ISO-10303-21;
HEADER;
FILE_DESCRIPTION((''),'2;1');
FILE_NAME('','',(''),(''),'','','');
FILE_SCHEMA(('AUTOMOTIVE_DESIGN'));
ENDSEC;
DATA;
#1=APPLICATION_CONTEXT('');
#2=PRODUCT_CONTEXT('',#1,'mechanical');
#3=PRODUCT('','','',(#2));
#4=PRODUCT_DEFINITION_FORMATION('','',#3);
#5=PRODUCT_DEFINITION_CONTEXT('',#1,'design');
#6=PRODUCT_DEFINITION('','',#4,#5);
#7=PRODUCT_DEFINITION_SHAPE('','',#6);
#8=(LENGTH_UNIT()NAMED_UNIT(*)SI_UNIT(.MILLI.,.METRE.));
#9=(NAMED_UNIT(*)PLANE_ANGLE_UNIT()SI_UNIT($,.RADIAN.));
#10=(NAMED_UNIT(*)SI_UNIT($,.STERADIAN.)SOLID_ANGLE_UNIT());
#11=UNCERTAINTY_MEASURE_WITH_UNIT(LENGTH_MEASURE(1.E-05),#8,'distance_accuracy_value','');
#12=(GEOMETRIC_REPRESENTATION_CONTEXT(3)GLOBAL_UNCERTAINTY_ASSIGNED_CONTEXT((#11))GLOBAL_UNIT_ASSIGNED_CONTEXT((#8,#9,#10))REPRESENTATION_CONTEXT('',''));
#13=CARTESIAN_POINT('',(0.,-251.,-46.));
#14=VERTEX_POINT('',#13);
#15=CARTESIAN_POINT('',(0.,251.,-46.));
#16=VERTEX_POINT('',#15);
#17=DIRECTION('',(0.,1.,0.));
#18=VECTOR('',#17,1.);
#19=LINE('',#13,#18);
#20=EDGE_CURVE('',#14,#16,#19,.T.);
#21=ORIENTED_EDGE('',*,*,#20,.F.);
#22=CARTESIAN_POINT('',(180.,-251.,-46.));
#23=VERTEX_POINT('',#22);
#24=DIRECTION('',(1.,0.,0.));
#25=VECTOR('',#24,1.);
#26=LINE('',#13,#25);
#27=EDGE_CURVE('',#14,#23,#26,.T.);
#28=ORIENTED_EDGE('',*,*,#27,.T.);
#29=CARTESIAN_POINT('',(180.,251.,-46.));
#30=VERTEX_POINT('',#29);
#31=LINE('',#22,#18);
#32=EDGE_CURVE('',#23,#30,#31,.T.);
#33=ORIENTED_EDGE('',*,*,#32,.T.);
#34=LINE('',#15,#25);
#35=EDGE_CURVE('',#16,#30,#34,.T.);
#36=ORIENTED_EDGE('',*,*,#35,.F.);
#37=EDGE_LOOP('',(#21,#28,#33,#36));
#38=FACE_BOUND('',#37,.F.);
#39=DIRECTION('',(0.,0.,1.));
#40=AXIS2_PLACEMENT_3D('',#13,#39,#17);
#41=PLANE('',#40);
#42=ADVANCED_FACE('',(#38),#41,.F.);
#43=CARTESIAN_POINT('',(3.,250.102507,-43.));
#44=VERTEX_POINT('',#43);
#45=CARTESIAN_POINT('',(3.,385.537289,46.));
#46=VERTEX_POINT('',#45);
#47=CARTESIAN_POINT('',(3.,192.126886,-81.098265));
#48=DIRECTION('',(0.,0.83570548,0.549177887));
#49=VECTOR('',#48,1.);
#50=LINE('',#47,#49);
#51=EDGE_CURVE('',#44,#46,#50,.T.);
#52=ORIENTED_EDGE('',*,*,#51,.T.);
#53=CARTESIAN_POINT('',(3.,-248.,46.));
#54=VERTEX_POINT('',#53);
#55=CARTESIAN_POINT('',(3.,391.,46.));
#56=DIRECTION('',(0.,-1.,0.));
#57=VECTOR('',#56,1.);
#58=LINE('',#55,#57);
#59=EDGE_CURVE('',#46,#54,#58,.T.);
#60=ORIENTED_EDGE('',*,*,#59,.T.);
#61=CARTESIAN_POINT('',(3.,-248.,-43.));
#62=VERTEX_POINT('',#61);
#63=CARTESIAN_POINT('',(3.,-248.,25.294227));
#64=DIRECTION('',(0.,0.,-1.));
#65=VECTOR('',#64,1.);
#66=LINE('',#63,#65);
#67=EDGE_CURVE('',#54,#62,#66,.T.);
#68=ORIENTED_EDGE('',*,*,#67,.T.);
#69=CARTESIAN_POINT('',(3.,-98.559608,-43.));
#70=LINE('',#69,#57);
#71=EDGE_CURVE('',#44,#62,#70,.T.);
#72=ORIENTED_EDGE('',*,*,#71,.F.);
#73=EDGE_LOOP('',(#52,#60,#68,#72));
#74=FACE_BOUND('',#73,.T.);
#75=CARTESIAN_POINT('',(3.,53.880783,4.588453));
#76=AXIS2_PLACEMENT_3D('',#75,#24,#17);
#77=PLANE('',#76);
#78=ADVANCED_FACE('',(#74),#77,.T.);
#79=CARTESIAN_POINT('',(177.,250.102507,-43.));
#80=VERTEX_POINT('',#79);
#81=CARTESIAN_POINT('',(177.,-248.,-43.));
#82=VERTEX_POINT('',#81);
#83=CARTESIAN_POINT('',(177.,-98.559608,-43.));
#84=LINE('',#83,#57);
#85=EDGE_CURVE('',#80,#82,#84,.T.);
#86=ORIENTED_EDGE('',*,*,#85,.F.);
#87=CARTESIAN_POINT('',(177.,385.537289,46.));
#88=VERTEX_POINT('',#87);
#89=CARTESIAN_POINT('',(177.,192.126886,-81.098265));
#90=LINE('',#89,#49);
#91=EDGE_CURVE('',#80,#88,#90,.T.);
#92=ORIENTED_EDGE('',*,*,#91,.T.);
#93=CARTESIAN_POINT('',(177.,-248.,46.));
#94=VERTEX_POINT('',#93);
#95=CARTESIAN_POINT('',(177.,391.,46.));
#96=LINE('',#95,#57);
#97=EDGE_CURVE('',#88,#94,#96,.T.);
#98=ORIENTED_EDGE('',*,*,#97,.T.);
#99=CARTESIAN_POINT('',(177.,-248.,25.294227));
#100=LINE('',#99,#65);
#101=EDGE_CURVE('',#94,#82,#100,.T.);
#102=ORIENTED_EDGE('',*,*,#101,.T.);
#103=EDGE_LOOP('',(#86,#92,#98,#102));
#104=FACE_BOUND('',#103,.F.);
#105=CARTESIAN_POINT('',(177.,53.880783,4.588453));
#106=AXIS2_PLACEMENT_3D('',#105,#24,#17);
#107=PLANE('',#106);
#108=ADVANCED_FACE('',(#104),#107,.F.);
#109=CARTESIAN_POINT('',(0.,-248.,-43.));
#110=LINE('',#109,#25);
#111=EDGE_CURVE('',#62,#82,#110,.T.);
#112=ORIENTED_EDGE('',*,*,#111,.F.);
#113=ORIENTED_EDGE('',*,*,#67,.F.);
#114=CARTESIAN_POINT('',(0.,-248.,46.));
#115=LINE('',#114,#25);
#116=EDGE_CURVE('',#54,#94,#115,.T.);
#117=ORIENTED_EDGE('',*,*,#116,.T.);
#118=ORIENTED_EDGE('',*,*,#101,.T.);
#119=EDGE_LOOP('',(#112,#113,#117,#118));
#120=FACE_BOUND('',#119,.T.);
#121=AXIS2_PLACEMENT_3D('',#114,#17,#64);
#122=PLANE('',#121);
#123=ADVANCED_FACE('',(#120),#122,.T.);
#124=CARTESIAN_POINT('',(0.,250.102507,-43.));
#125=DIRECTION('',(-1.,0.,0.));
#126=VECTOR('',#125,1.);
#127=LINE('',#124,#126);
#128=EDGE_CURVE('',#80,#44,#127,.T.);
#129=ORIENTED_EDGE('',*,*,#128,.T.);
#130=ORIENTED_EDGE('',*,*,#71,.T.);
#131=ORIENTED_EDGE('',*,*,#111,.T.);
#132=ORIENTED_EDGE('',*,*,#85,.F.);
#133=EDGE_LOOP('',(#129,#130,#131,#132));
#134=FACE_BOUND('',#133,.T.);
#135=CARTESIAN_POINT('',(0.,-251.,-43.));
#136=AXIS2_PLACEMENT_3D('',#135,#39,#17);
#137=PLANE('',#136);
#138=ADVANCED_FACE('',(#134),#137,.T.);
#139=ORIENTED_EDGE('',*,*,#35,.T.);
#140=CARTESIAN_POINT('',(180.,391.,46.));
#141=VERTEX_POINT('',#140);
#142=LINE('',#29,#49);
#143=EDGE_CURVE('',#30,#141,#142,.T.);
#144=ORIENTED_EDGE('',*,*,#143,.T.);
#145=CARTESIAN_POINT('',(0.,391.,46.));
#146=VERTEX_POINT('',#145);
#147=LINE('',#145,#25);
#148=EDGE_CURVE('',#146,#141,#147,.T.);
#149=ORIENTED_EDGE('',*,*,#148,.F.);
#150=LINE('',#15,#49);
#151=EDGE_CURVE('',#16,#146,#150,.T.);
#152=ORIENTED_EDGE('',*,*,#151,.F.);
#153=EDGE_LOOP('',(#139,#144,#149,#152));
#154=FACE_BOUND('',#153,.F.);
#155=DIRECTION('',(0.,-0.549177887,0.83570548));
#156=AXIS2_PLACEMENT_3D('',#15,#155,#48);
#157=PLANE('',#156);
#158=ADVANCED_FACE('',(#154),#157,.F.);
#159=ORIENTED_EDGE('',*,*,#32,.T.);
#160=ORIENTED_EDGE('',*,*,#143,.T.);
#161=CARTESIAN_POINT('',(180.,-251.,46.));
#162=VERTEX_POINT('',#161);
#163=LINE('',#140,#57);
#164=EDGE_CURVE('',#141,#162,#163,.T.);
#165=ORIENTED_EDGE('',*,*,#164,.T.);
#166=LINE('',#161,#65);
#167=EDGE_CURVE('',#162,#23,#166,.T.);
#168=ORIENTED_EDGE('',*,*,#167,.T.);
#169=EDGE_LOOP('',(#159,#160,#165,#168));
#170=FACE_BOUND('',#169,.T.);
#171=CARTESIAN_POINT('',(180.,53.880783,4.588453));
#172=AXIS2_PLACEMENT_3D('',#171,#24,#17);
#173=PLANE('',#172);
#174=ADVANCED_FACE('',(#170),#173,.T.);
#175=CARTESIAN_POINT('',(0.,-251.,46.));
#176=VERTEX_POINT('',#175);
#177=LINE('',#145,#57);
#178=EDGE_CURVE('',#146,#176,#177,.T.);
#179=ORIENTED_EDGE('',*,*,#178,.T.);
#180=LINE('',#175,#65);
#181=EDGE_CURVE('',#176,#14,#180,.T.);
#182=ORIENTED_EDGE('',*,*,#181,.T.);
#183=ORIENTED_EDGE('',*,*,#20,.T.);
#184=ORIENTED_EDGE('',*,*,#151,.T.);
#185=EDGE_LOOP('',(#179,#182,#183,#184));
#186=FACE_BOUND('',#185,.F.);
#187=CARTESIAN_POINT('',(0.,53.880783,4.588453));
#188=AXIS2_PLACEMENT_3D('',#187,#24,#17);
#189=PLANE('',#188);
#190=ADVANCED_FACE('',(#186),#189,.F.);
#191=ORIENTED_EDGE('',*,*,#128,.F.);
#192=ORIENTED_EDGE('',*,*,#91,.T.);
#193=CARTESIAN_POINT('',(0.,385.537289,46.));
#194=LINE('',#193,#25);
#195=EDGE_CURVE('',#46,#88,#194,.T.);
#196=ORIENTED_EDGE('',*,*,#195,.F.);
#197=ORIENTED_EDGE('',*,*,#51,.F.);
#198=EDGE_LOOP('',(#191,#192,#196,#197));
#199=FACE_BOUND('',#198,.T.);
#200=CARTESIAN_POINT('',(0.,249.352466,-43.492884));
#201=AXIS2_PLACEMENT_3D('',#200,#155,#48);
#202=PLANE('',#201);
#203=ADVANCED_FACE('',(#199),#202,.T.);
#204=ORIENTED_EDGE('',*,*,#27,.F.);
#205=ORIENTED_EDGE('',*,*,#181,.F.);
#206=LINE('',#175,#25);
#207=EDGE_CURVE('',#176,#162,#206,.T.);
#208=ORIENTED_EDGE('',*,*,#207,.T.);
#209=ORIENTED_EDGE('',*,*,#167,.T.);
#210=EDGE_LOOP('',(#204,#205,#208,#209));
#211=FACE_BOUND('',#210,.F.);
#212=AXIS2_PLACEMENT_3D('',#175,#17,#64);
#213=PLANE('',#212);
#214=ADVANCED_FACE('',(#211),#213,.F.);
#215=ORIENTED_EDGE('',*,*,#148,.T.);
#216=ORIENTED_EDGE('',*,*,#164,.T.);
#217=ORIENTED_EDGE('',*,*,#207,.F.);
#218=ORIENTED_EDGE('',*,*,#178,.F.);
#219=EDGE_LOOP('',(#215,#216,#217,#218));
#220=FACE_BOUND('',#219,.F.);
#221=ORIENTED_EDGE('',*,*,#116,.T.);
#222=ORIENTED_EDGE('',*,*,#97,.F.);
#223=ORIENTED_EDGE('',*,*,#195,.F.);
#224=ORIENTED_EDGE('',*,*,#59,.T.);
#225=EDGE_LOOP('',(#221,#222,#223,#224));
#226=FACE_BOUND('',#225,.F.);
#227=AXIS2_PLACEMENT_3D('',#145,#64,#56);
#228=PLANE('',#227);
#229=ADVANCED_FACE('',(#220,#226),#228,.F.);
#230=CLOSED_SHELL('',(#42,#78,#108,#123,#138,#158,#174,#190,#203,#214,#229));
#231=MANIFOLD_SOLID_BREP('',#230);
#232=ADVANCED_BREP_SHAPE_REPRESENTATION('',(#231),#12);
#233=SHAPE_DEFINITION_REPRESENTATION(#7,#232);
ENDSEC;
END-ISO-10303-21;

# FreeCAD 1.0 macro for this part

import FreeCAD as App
import Part
import Sketcher
Q = App.Units.Quantity


def faces_at(feature, points):
    """Names of the faces that lie closest to the given points."""
    faces = feature.Shape.Faces
    near = lambda p: min(range(len(faces)), key=lambda i: faces[i].distToShape(Part.Vertex(*p))[0])
    return sorted({f"Face{near(p) + 1}" for p in points})


def add_polygon(sketch, points):
    """Adds a closed chain of lines whose ends are joined by coincident constraints."""
    first, n = sketch.GeometryCount, len(points)
    for a, b in zip(points, points[1:] + points[:1]):
        sketch.addGeometry(Part.LineSegment(App.Vector(*a, 0), App.Vector(*b, 0)), False)
    for i in range(n):
        sketch.addConstraint(Sketcher.Constraint("Coincident", first + i, 2, first + (i + 1) % n, 1))

doc = App.newDocument("Part")
body = doc.addObject("PartDesign::Body", "Body")

# Sketch on YZ plane
sketch1 = body.newObject("Sketcher::SketchObject", "Sketch")
sketch1.AttachmentSupport = (doc.getObject("YZ_Plane"), [""])
sketch1.MapMode = "FlatFace"
add_polygon(sketch1, [(-251, 46), (-251, -46), (251, -46), (391, 46)])  # lines 0-3
sketch1.addConstraint([
    Sketcher.Constraint("Vertical", 0),
    Sketcher.Constraint("Horizontal", 1),
    Sketcher.Constraint("Horizontal", 3),
    Sketcher.Constraint("Symmetric", 1, 2, 3, 2, -1, 1),
    Sketcher.Constraint("DistanceX", 1, 1, 1, 2, Q("502 mm")),
    Sketcher.Constraint("DistanceX", 3, 2, 3, 1, Q("642 mm")),
    Sketcher.Constraint("DistanceY", 0, 2, 0, 1, Q("92 mm")),
])
pad1 = body.newObject("PartDesign::Pad", "Pad")
pad1.Profile = sketch1
pad1.Length = 180
doc.recompute()

thickness = body.newObject("PartDesign::Thickness", "Thickness")
thickness.Base = (pad1, faces_at(pad1, [(90, 70, 46)]))
thickness.Value = 3
thickness.Reversed = True
thickness.Join = "Arc"

doc.recompute()
